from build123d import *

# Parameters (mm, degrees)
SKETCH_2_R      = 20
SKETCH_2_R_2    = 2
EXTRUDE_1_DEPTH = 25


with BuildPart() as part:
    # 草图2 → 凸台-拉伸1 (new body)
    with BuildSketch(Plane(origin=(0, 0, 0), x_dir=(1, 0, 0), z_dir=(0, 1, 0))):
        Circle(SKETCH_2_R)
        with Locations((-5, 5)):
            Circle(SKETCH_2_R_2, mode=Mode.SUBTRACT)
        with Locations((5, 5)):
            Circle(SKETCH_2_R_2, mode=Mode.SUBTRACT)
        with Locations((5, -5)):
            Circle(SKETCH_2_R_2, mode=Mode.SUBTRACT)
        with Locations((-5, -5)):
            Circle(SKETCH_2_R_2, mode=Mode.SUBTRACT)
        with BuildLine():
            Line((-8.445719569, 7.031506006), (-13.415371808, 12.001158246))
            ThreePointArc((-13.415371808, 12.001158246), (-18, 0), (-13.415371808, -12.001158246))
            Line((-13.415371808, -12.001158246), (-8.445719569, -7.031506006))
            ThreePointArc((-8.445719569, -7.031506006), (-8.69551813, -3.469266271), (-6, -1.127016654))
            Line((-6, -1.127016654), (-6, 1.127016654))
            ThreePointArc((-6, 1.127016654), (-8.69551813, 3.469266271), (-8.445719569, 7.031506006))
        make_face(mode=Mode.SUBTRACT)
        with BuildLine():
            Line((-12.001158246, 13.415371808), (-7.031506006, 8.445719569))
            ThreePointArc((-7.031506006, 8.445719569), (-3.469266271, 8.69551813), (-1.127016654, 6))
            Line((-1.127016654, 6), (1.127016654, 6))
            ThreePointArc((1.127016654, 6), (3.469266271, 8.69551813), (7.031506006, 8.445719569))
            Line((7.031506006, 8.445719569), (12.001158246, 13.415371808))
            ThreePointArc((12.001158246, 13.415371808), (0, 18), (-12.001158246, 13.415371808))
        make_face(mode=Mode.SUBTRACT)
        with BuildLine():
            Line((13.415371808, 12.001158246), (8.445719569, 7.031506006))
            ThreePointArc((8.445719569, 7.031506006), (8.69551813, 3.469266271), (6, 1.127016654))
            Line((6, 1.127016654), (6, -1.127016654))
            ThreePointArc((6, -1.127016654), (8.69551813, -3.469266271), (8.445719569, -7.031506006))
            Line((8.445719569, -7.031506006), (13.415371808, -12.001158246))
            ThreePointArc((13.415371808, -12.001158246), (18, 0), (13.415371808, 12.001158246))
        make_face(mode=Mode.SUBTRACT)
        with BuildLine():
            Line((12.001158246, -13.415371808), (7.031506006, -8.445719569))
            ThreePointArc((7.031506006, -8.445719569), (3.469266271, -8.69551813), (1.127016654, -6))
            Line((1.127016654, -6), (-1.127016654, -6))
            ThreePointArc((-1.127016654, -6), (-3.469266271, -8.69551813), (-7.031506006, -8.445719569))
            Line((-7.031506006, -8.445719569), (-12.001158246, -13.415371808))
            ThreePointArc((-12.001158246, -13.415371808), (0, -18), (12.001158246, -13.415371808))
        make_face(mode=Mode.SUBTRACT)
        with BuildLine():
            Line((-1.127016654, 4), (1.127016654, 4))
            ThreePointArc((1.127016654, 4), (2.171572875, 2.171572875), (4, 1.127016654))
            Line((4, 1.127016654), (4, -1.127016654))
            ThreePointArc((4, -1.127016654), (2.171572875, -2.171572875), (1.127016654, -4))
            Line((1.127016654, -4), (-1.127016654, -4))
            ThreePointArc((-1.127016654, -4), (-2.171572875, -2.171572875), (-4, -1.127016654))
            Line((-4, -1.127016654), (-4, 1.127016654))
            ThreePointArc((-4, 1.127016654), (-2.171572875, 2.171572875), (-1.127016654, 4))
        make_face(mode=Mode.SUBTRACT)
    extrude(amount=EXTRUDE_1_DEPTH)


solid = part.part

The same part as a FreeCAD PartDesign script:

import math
import FreeCAD as App
import Part
import Sketcher
from FreeCAD import Vector

doc = App.newDocument("Part")
body = doc.addObject("PartDesign::Body", "Body")

# Sketch on XZ plane
sketch1 = doc.addObject("Sketcher::SketchObject", "Sketch")
body.addObject(sketch1)
sketch1.AttachmentSupport = (doc.XZ_Plane, [""])
sketch1.MapMode = "FlatFace"
sketch1.addGeometry([
    Part.Circle(Vector(0, 0, 0), Vector(0, 0, 1), 20),  # 0
    Part.LineSegment(Vector(7, 8.4, 0), Vector(12, 13.4, 0)),  # 1
    Part.ArcOfCircle(Part.Circle(Vector(0, 0, 0), Vector(0, 0, 1), 18), math.radians(48), math.radians(132)),  # 2
    Part.LineSegment(Vector(-12, 13.4, 0), Vector(-7, 8.4, 0)),  # 3
    Part.ArcOfCircle(Part.Circle(Vector(-5, 5, 0), Vector(0, 0, 1), 4), math.radians(14), math.radians(121)),  # 4
    Part.LineSegment(Vector(-1.1, 6, 0), Vector(1.1, 6, 0)),  # 5
    Part.ArcOfCircle(Part.Circle(Vector(5, 5, 0), Vector(0, 0, 1), 4), math.radians(59), math.radians(166)),  # 6
    Part.Circle(Vector(-5, 5, 0), Vector(0, 0, 1), 2),  # 7
    Part.Circle(Vector(5, 5, 0), Vector(0, 0, 1), 2),  # 8
    Part.LineSegment(Vector(-13.4, -12, 0), Vector(-8.4, -7, 0)),  # 9
    Part.ArcOfCircle(Part.Circle(Vector(-5, -5, 0), Vector(0, 0, 1), 4), math.radians(104), math.radians(211)),  # 10
    Part.LineSegment(Vector(-6, -1.1, 0), Vector(-6, 1.1, 0)),  # 11
    Part.ArcOfCircle(Part.Circle(Vector(-5, 5, 0), Vector(0, 0, 1), 4), math.radians(149), math.radians(256)),  # 12
    Part.LineSegment(Vector(-8.4, 7, 0), Vector(-13.4, 12, 0)),  # 13
    Part.ArcOfCircle(Part.Circle(Vector(0, 0, 0), Vector(0, 0, 1), 18), math.radians(138), math.radians(222)),  # 14
    Part.ArcOfCircle(Part.Circle(Vector(-5, -5, 0), Vector(0, 0, 1), 4), math.radians(14), math.radians(76)),  # 15
    Part.LineSegment(Vector(-1.1, -4, 0), Vector(1.1, -4, 0)),  # 16
    Part.ArcOfCircle(Part.Circle(Vector(5, -5, 0), Vector(0, 0, 1), 4), math.radians(104), math.radians(166)),  # 17
    Part.LineSegment(Vector(4, -1.1, 0), Vector(4, 1.1, 0)),  # 18
    Part.ArcOfCircle(Part.Circle(Vector(5, 5, 0), Vector(0, 0, 1), 4), math.radians(-166), math.radians(-104)),  # 19
    Part.LineSegment(Vector(1.1, 4, 0), Vector(-1.1, 4, 0)),  # 20
    Part.ArcOfCircle(Part.Circle(Vector(-5, 5, 0), Vector(0, 0, 1), 4), math.radians(-76), math.radians(-14)),  # 21
    Part.LineSegment(Vector(-4, 1.1, 0), Vector(-4, -1.1, 0)),  # 22
    Part.Circle(Vector(-5, -5, 0), Vector(0, 0, 1), 2),  # 23
    Part.Circle(Vector(5, -5, 0), Vector(0, 0, 1), 2),  # 24
    Part.LineSegment(Vector(8.4, -7, 0), Vector(13.4, -12, 0)),  # 25
    Part.ArcOfCircle(Part.Circle(Vector(0, 0, 0), Vector(0, 0, 1), 18), math.radians(-42), math.radians(42)),  # 26
    Part.LineSegment(Vector(13.4, 12, 0), Vector(8.4, 7, 0)),  # 27
    Part.ArcOfCircle(Part.Circle(Vector(5, 5, 0), Vector(0, 0, 1), 4), math.radians(-76), math.radians(31)),  # 28
    Part.LineSegment(Vector(6, 1.1, 0), Vector(6, -1.1, 0)),  # 29
    Part.ArcOfCircle(Part.Circle(Vector(5, -5, 0), Vector(0, 0, 1), 4), math.radians(-31), math.radians(76)),  # 30
    Part.LineSegment(Vector(-7, -8.4, 0), Vector(-12, -13.4, 0)),  # 31
    Part.ArcOfCircle(Part.Circle(Vector(0, 0, 0), Vector(0, 0, 1), 18), math.radians(-132), math.radians(-48)),  # 32
    Part.LineSegment(Vector(12, -13.4, 0), Vector(7, -8.4, 0)),  # 33
    Part.ArcOfCircle(Part.Circle(Vector(5, -5, 0), Vector(0, 0, 1), 4), math.radians(-166), math.radians(-59)),  # 34
    Part.LineSegment(Vector(1.1, -6, 0), Vector(-1.1, -6, 0)),  # 35
    Part.ArcOfCircle(Part.Circle(Vector(-5, -5, 0), Vector(0, 0, 1), 4), math.radians(-121), math.radians(-14)),  # 36
], False)
sketch1.addConstraint([
    Sketcher.Constraint("Coincident", 1, 2, 2, 1),
    Sketcher.Constraint("Coincident", 2, 2, 3, 1),
    Sketcher.Constraint("Coincident", 3, 2, 4, 2),
    Sketcher.Constraint("Coincident", 4, 1, 5, 1),
    Sketcher.Constraint("Coincident", 5, 2, 6, 2),
    Sketcher.Constraint("Coincident", 6, 1, 1, 1),
    Sketcher.Constraint("Coincident", 9, 2, 10, 2),
    Sketcher.Constraint("Coincident", 10, 1, 11, 1),
    Sketcher.Constraint("Coincident", 11, 2, 12, 2),
    Sketcher.Constraint("Coincident", 12, 1, 13, 1),
    Sketcher.Constraint("Coincident", 13, 2, 14, 1),
    Sketcher.Constraint("Coincident", 14, 2, 9, 1),
    Sketcher.Constraint("Coincident", 15, 1, 16, 1),
    Sketcher.Constraint("Coincident", 16, 2, 17, 2),
    Sketcher.Constraint("Coincident", 17, 1, 18, 1),
    Sketcher.Constraint("Coincident", 18, 2, 19, 2),
    Sketcher.Constraint("Coincident", 19, 1, 20, 1),
    Sketcher.Constraint("Coincident", 20, 2, 21, 2),
    Sketcher.Constraint("Coincident", 21, 1, 22, 1),
    Sketcher.Constraint("Coincident", 22, 2, 15, 2),
    Sketcher.Constraint("Coincident", 25, 2, 26, 1),
    Sketcher.Constraint("Coincident", 26, 2, 27, 1),
    Sketcher.Constraint("Coincident", 27, 2, 28, 2),
    Sketcher.Constraint("Coincident", 28, 1, 29, 1),
    Sketcher.Constraint("Coincident", 29, 2, 30, 2),
    Sketcher.Constraint("Coincident", 30, 1, 25, 1),
    Sketcher.Constraint("Coincident", 31, 2, 32, 1),
    Sketcher.Constraint("Coincident", 32, 2, 33, 1),
    Sketcher.Constraint("Coincident", 33, 2, 34, 2),
    Sketcher.Constraint("Coincident", 34, 1, 35, 1),
    Sketcher.Constraint("Coincident", 35, 2, 36, 2),
    Sketcher.Constraint("Coincident", 36, 1, 31, 1),
    Sketcher.Constraint("Horizontal", 5),
    Sketcher.Constraint("Vertical", 11),
    Sketcher.Constraint("Horizontal", 16),
    Sketcher.Constraint("Vertical", 18),
    Sketcher.Constraint("Horizontal", 20),
    Sketcher.Constraint("Vertical", 22),
    Sketcher.Constraint("Vertical", 29),
    Sketcher.Constraint("Horizontal", 35),
    Sketcher.Constraint("Coincident", 0, 3, -1, 1),
    Sketcher.Constraint("Coincident", 2, 3, -1, 1),
    Sketcher.Constraint("Coincident", 14, 3, -1, 1),
    Sketcher.Constraint("Coincident", 26, 3, -1, 1),
    Sketcher.Constraint("Coincident", 32, 3, -1, 1),
    Sketcher.Constraint("Coincident", 7, 3, 4, 3),
    Sketcher.Constraint("Coincident", 8, 3, 6, 3),
    Sketcher.Constraint("Coincident", 12, 3, 4, 3),
    Sketcher.Constraint("Coincident", 15, 3, 10, 3),
    Sketcher.Constraint("Coincident", 19, 3, 6, 3),
    Sketcher.Constraint("Coincident", 21, 3, 4, 3),
    Sketcher.Constraint("Coincident", 23, 3, 10, 3),
    Sketcher.Constraint("Coincident", 24, 3, 17, 3),
    Sketcher.Constraint("Coincident", 28, 3, 6, 3),
    Sketcher.Constraint("Coincident", 30, 3, 17, 3),
    Sketcher.Constraint("Coincident", 34, 3, 17, 3),
    Sketcher.Constraint("Coincident", 36, 3, 10, 3),
    Sketcher.Constraint("Equal", 4, 6),
    Sketcher.Constraint("Equal", 7, 8),
    Sketcher.Constraint("Equal", 6, 10),
    Sketcher.Constraint("Equal", 10, 12),
    Sketcher.Constraint("Equal", 2, 14),
    Sketcher.Constraint("Equal", 12, 15),
    Sketcher.Constraint("Equal", 15, 17),
    Sketcher.Constraint("Equal", 17, 19),
    Sketcher.Constraint("Equal", 19, 21),
    Sketcher.Constraint("Equal", 8, 23),
    Sketcher.Constraint("Equal", 23, 24),
    Sketcher.Constraint("Equal", 14, 26),
    Sketcher.Constraint("Equal", 21, 28),
    Sketcher.Constraint("Equal", 28, 30),
    Sketcher.Constraint("Equal", 26, 32),
    Sketcher.Constraint("Equal", 30, 34),
    Sketcher.Constraint("Equal", 34, 36),
    Sketcher.Constraint("Symmetric", 6, 3, 10, 3, -1, 1),
    Sketcher.Constraint("Symmetric", 4, 3, 17, 3, -1, 1),
    Sketcher.Constraint("Symmetric", 4, 3, 6, 3, -2),
    Sketcher.Constraint("Perpendicular", 1, 3),
    Sketcher.Constraint("Perpendicular", 3, 9),
    Sketcher.Constraint("Perpendicular", 9, 13),
    Sketcher.Constraint("Parallel", 13, 25),
    Sketcher.Constraint("Perpendicular", 25, 27),
    Sketcher.Constraint("Parallel", 27, 31),
    Sketcher.Constraint("Perpendicular", 31, 33),
    Sketcher.Constraint("Horizontal", 1, 2, 2, 2),
    Sketcher.Constraint("Horizontal", 3, 2, 6, 1),
    Sketcher.Constraint("Horizontal", 10, 1, 17, 1),
    Sketcher.Constraint("Horizontal", 18, 2, 21, 1),
    Sketcher.Constraint("Horizontal", 14, 2, 25, 2),
    Sketcher.Constraint("Horizontal", 13, 2, 26, 2),
    Sketcher.Constraint("Horizontal", 21, 1, 28, 1),
    Sketcher.Constraint("Horizontal", 31, 2, 32, 2),
    Sketcher.Constraint("Vertical", 9, 2, 12, 1),
    Sketcher.Constraint("Vertical", 4, 1, 15, 1),
    Sketcher.Constraint("Vertical", 16, 2, 19, 1),
    Sketcher.Constraint("Vertical", 2, 2, 31, 2),
    Sketcher.Constraint("Vertical", 19, 1, 34, 1),
    Sketcher.Constraint("Equal", 35, 11),
    Sketcher.Constraint("Equal", 3, 9),
    Sketcher.Constraint("Diameter", 0, 40.0),
    Sketcher.Constraint("Diameter", 7, 4.0),
    Sketcher.Constraint("Radius", 2, 18.0),
    Sketcher.Constraint("Radius", 4, 4.0),
    Sketcher.Constraint("DistanceX", 4, 3, -1, 1, 5.0),
    Sketcher.Constraint("DistanceY", -1, 1, 4, 3, 5.0),
    Sketcher.Constraint("DistanceY", -1, 1, 4, 1, 6.0),
    Sketcher.Constraint("Distance", 1, 7.02815),
])
pad1 = doc.addObject("PartDesign::Pad", "Pad")
body.addObject(pad1)
pad1.Profile = sketch1
pad1.Length = 25
pad1.Reversed = True

doc.recompute()
